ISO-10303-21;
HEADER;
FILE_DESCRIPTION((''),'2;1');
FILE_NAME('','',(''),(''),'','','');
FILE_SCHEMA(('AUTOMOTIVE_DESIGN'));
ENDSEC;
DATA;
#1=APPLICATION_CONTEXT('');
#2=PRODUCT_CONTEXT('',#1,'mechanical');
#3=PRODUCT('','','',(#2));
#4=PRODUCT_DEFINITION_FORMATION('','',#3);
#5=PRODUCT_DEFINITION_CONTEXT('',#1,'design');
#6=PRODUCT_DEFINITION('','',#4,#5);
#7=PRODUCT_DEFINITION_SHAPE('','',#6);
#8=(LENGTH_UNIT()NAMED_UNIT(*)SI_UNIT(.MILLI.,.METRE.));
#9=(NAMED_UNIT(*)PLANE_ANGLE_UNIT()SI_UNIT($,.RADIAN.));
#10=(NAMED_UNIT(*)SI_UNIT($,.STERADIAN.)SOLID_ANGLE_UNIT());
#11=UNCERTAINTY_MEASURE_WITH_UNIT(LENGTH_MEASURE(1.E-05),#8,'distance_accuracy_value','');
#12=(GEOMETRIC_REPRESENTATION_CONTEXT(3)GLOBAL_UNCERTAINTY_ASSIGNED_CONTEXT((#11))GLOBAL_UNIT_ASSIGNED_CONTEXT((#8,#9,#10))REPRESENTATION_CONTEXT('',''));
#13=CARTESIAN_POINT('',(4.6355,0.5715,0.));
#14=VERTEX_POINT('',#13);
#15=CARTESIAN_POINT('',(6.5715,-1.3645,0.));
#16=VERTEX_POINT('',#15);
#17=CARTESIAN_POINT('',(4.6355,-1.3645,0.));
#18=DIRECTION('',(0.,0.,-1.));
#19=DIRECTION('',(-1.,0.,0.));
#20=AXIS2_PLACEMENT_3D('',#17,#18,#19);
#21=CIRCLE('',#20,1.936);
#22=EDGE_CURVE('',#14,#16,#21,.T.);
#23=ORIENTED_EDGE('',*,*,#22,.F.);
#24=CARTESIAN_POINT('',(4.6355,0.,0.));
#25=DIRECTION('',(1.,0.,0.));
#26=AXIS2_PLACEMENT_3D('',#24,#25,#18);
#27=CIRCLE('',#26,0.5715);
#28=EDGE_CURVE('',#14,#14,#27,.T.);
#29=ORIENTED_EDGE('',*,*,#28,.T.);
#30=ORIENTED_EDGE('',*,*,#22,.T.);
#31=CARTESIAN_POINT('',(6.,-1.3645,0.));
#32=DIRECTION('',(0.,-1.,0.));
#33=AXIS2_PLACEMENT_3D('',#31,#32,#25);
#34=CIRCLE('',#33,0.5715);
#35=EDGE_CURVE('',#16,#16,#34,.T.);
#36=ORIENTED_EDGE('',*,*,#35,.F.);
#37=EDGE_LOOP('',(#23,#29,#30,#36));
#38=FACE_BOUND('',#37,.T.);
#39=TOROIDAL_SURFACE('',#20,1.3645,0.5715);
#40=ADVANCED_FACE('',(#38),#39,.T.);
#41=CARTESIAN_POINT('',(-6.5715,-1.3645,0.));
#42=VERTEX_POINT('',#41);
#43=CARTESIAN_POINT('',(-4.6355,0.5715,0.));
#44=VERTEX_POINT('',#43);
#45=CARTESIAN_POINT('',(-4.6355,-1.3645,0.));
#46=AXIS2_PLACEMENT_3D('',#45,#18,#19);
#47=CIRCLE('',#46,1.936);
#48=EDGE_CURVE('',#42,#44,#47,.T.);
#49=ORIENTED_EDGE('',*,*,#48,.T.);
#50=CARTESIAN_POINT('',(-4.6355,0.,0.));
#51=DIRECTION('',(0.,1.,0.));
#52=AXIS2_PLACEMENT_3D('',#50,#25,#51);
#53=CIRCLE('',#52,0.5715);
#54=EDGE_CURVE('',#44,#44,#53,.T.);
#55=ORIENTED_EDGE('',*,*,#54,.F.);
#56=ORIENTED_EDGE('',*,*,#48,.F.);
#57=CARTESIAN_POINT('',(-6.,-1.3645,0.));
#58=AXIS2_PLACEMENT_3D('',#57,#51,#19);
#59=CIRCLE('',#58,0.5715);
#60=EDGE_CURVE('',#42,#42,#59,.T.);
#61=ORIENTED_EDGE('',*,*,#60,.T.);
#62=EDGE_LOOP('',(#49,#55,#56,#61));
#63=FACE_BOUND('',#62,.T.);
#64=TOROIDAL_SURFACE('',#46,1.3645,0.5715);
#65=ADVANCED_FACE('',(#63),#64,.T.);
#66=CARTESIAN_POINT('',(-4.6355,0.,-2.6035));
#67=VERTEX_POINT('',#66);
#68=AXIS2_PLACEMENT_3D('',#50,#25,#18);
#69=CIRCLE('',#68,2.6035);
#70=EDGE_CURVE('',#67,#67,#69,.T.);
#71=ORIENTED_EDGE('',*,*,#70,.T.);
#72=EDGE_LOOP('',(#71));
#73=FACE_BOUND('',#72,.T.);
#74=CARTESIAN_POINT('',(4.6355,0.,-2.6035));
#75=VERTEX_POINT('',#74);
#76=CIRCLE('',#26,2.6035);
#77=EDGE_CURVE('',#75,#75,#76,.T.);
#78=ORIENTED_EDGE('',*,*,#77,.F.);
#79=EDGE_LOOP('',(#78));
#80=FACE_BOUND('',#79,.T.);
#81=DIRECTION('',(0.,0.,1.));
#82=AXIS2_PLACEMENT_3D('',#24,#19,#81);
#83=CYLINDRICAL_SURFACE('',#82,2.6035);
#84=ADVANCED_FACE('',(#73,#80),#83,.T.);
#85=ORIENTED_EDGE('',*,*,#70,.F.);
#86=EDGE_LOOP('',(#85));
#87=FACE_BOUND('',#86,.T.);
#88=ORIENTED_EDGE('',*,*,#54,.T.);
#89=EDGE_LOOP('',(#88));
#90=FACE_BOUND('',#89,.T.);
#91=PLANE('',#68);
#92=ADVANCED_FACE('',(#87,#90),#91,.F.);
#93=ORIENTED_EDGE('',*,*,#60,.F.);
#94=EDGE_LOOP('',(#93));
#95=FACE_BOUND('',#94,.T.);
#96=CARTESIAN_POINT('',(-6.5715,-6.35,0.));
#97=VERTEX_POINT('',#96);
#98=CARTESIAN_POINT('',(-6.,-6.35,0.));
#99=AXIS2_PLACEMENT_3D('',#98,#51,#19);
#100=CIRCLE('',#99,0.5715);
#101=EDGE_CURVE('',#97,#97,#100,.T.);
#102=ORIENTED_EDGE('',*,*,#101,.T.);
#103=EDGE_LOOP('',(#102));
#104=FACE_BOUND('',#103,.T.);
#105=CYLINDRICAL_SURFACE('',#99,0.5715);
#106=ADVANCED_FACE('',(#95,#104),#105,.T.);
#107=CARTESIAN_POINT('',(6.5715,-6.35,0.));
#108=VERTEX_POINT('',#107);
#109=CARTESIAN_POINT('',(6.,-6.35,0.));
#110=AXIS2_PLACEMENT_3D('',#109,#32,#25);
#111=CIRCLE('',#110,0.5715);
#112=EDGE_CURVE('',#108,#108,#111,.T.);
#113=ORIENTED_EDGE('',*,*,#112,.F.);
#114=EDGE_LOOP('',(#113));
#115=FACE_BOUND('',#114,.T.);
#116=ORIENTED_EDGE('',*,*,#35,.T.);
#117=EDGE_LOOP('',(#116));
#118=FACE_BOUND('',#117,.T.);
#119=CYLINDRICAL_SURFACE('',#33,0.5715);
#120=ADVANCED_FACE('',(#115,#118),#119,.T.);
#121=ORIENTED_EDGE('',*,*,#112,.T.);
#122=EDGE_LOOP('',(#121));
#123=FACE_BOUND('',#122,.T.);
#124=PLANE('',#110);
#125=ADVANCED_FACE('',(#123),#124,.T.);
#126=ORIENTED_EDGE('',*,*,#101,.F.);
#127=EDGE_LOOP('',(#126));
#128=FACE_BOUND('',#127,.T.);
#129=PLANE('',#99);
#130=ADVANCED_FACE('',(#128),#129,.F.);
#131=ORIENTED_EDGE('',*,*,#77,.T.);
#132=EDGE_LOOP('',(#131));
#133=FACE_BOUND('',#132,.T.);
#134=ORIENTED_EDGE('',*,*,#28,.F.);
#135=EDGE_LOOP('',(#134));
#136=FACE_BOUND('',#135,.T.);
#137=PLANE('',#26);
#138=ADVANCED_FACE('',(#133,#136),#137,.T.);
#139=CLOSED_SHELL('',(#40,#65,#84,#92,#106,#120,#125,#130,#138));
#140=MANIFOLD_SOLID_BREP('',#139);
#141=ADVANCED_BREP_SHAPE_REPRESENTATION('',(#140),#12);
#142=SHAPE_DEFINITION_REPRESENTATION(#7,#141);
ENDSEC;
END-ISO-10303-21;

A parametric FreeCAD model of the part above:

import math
import FreeCAD as App
import Part
import Sketcher
Q = App.Units.Quantity

doc = App.newDocument("Part")
body = doc.addObject("PartDesign::Body", "Body")

sketch1 = doc.addObject("Sketcher::SketchObject", "Sketch")
body.addObject(sketch1)
sketch1.AttachmentSupport = (doc.YZ_Plane, [""])
sketch1.MapMode = "FlatFace"
sketch1.addGeometry(Part.Circle(App.Vector(0, 0, 0), App.Vector(0, 0, 1), 2.6035), False)
sketch1.addConstraint([
    Sketcher.Constraint("Coincident", 0, 3, -1, 1),
    Sketcher.Constraint("Diameter", 0, Q("0.205 in")),
])
pad1 = doc.addObject("PartDesign::Pad", "Pad")
body.addObject(pad1)
pad1.Profile = sketch1
pad1.Length = Q("0.365 in")
pad1.Midplane = True

sketch2 = doc.addObject("Sketcher::SketchObject", "Sketch001")
body.addObject(sketch2)
sketch2.AttachmentSupport = (doc.XZ_Plane, [""])
sketch2.MapMode = "FlatFace"
sketch2.AttachmentOffset = App.Placement(App.Vector(0, 0, 0.25 * 25.4), App.Rotation())
sketch2.addGeometry(Part.Circle(App.Vector(-6, 0, 0), App.Vector(0, 0, 1), 0.5715), False)
sketch2.addConstraint([
    Sketcher.Constraint("PointOnObject", 0, 3, -1),
    Sketcher.Constraint("Diameter", 0, Q("0.045 in")),
    Sketcher.Constraint("DistanceX", 0, 3, -1, 1, Q("6 mm")),
])

sketch3 = doc.addObject("Sketcher::SketchObject", "Sketch002")
body.addObject(sketch3)
sketch3.AttachmentSupport = (doc.XY_Plane, [""])
sketch3.MapMode = "FlatFace"
sketch3.addGeometry([
    Part.LineSegment(App.Vector(-6, -6.35, 0), App.Vector(-6, -1.3645, 0)),
    Part.ArcOfCircle(Part.Circle(App.Vector(-4.6355, -1.3645, 0), App.Vector(0, 0, 1), 1.3645), math.radians(90), math.radians(180)),
    Part.LineSegment(App.Vector(-4.6355, 0, 0), App.Vector(4.6355, 0, 0)),
    Part.ArcOfCircle(Part.Circle(App.Vector(4.6355, -1.3645, 0), App.Vector(0, 0, 1), 1.3645), math.radians(0), math.radians(90)),
    Part.LineSegment(App.Vector(6, -1.3645, 0), App.Vector(6, -6.35, 0)),
], False)
sketch3.addConstraint([
    Sketcher.Constraint("Tangent", 0, 2, 1, 2),
    Sketcher.Constraint("Tangent", 1, 1, 2, 1),
    Sketcher.Constraint("Tangent", 2, 2, 3, 2),
    Sketcher.Constraint("Tangent", 3, 1, 4, 1),
    Sketcher.Constraint("Vertical", 0),
    Sketcher.Constraint("Horizontal", 2),
    Sketcher.Constraint("Vertical", 4),
    Sketcher.Constraint("Equal", 1, 3),
    Sketcher.Constraint("Symmetric", 1, 1, 2, 2, -1, 1),
    Sketcher.Constraint("Horizontal", 0, 1, 4, 2),
    Sketcher.Constraint("DistanceX", 2, 1, 2, 2, Q("0.365 in")),
    Sketcher.Constraint("DistanceY", 0, 1, -1, 1, Q("0.25 in")),
    Sketcher.Constraint("Radius", 1, Q("1.3645 mm")),
])
doc.recompute()

additivepipe = doc.addObject("PartDesign::AdditivePipe", "AdditivePipe")
body.addObject(additivepipe)
additivepipe.Profile = sketch2
additivepipe.Spine = (sketch3, ["Edge1", "Edge2", "Edge3", "Edge4", "Edge5"])

doc.recompute()
